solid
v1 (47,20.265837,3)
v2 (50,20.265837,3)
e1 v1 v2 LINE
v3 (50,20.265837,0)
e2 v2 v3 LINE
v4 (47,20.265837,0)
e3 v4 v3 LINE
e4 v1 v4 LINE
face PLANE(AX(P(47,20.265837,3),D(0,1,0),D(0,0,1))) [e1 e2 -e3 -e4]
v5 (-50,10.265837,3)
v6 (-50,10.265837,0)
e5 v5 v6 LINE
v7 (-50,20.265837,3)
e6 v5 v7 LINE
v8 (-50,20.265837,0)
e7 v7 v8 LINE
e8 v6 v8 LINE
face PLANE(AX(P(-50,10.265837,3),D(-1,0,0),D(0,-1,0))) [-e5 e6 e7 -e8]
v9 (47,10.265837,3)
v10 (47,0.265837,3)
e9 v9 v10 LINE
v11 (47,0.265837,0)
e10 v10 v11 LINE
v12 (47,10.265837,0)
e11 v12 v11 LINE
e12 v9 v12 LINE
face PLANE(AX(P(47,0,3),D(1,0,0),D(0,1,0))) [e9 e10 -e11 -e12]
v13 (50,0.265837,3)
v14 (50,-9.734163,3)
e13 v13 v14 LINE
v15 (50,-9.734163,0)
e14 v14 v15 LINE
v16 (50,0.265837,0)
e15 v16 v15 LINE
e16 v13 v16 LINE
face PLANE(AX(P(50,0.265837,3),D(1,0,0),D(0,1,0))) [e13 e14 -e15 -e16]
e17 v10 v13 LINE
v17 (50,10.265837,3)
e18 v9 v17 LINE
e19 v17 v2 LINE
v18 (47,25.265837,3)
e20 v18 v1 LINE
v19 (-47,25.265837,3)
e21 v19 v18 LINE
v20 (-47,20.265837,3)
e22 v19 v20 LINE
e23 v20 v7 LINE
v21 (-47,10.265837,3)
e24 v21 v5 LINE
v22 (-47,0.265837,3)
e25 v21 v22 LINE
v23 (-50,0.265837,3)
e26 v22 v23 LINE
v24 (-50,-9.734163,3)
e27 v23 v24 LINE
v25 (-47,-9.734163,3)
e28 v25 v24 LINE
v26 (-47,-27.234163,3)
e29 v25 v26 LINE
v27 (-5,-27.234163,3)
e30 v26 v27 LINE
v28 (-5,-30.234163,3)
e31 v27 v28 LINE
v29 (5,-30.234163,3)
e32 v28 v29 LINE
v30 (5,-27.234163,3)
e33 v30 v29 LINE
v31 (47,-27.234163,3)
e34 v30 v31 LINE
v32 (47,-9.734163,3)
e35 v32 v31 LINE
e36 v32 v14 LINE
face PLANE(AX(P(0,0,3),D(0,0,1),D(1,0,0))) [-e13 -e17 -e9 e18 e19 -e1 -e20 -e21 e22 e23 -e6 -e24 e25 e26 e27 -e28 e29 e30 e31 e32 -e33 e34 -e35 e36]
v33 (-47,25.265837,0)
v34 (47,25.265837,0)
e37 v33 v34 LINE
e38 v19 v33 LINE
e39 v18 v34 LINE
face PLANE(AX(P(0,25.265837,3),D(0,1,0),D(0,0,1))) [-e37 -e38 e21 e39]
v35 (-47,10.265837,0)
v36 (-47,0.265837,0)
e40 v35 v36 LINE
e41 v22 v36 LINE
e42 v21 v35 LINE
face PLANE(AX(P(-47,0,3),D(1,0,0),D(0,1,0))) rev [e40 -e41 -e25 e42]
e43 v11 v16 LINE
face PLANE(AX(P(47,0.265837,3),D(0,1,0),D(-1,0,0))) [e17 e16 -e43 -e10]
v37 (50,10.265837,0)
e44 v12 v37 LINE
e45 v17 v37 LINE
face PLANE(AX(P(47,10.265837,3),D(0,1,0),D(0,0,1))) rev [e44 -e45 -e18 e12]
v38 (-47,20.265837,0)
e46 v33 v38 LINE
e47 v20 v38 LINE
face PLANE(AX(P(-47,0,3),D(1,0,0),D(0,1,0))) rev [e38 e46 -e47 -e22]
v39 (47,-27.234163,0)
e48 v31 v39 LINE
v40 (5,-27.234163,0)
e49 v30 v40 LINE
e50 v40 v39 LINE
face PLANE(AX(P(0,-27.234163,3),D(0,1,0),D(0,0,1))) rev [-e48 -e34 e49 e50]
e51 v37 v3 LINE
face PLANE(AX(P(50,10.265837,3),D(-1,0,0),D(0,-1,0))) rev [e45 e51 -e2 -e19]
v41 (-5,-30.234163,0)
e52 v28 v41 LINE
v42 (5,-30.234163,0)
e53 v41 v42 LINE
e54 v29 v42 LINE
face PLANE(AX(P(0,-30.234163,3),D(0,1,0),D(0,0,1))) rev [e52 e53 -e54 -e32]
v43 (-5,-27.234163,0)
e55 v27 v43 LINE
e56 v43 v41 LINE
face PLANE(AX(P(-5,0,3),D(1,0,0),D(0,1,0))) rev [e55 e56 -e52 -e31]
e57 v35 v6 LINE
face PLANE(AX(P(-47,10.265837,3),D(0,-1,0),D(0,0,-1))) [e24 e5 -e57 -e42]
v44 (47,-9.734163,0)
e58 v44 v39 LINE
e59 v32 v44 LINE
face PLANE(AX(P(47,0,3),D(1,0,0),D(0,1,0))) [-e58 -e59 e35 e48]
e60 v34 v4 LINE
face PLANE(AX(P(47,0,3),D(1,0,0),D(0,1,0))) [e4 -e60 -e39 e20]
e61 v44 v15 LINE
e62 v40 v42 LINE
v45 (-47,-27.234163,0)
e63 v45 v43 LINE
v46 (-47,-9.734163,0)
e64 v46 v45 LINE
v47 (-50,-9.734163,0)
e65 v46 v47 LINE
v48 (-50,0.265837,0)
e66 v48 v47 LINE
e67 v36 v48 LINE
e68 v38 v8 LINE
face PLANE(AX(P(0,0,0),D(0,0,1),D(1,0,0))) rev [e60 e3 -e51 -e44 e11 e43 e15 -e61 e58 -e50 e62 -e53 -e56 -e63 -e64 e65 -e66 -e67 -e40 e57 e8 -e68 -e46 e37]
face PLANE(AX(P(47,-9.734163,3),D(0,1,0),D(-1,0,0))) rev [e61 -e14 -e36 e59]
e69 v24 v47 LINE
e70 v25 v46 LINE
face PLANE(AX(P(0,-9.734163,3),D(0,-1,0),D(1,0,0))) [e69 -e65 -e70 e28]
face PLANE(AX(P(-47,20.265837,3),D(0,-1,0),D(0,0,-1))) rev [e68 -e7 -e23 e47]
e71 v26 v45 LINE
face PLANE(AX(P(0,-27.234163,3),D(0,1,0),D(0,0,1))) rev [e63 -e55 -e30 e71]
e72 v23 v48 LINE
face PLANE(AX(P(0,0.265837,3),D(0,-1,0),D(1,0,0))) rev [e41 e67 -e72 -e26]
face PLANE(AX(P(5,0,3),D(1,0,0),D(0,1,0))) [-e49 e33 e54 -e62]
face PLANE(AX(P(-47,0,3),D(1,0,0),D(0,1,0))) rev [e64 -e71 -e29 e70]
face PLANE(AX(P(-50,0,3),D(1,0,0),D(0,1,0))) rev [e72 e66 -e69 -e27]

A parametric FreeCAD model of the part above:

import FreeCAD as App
import Part
import Sketcher

V = App.Vector


def add_polygon(sketch, points):
    """Adds a closed chain of lines whose ends are joined by coincident constraints."""
    first, n = sketch.GeometryCount, len(points)
    for a, b in zip(points, points[1:] + points[:1]):
        sketch.addGeometry(Part.LineSegment(App.Vector(*a, 0), App.Vector(*b, 0)), False)
    for i in range(n):
        sketch.addConstraint(Sketcher.Constraint("Coincident", first + i, 2, first + (i + 1) % n, 1))

doc = App.newDocument("Part")
body = doc.addObject("PartDesign::Body", "Body")

# Sketch on XY plane
sketch1 = body.newObject("Sketcher::SketchObject", "Sketch")
sketch1.AttachmentSupport = (doc.getObject("XY_Plane"), [""])
sketch1.MapMode = "FlatFace"
add_polygon(sketch1, [(-50, 0.3), (-50, -9.7), (-47, -9.7), (-47, -27.2), (-5, -27.2), (-5, -30.2), (5, -30.2), (5, -27.2), (47, -27.2), (47, -9.7), (50, -9.7), (50, 0.3), (47, 0.3), (47, 10.3), (50, 10.3), (50, 20.3), (47, 20.3), (47, 25.3), (-47, 25.3), (-47, 20.3), (-50, 20.3), (-50, 10.3), (-47, 10.3), (-47, 0.3)])  # lines 0-23
sketch1.addConstraint([
    Sketcher.Constraint("Vertical", 0),
    Sketcher.Constraint("Horizontal", 1),
    Sketcher.Constraint("Vertical", 2),
    Sketcher.Constraint("Horizontal", 3),
    Sketcher.Constraint("Vertical", 4),
    Sketcher.Constraint("Horizontal", 5),
    Sketcher.Constraint("Vertical", 6),
    Sketcher.Constraint("Horizontal", 7),
    Sketcher.Constraint("Vertical", 8),
    Sketcher.Constraint("Horizontal", 9),
    Sketcher.Constraint("Vertical", 10),
    Sketcher.Constraint("Horizontal", 11),
    Sketcher.Constraint("Vertical", 12),
    Sketcher.Constraint("Horizontal", 13),
    Sketcher.Constraint("Vertical", 14),
    Sketcher.Constraint("Horizontal", 15),
    Sketcher.Constraint("Vertical", 16),
    Sketcher.Constraint("Horizontal", 17),
    Sketcher.Constraint("Vertical", 18),
    Sketcher.Constraint("Horizontal", 19),
    Sketcher.Constraint("Vertical", 20),
    Sketcher.Constraint("Horizontal", 21),
    Sketcher.Constraint("Vertical", 22),
    Sketcher.Constraint("Horizontal", 23),
    Sketcher.Constraint("Symmetric", 3, 2, 6, 2, -2),
    Sketcher.Constraint("Symmetric", 1, 2, 8, 2, -2),
    Sketcher.Constraint("Symmetric", 15, 2, 18, 2, -2),
    Sketcher.Constraint("Symmetric", 13, 2, 20, 2, -2),
    Sketcher.Constraint("Symmetric", 11, 2, 22, 2, -2),
    Sketcher.Constraint("Vertical", 8, 2, 11, 2),
    Sketcher.Constraint("Vertical", 10, 2, 13, 2),
    Sketcher.Constraint("Vertical", 12, 2, 15, 2),
    Sketcher.Constraint("Vertical", 0, 2, 19, 2),
    Sketcher.Constraint("Equal", 5, 0),
    Sketcher.Constraint("Equal", 23, 4),
    Sketcher.Constraint("Equal", 10, 12),
    Sketcher.Constraint("Equal", 12, 14),
    Sketcher.Constraint("DistanceX", 1, 1, 1, 2, 3.0),
    Sketcher.Constraint("DistanceX", 3, 1, 3, 2, 42.0),
    Sketcher.Constraint("DistanceX", 5, 1, 5, 2, 10.0),
    Sketcher.Constraint("DistanceY", 16, 1, 16, 2, 5.0),
    Sketcher.Constraint("DistanceY", 2, 2, 2, 1, 17.5),
    Sketcher.Constraint("DistanceY", 0, 2, -1, 1, 9.734163),
])
pad1 = body.newObject("PartDesign::Pad", "Pad")
pad1.Profile = sketch1
pad1.Length = 3

doc.recompute()
